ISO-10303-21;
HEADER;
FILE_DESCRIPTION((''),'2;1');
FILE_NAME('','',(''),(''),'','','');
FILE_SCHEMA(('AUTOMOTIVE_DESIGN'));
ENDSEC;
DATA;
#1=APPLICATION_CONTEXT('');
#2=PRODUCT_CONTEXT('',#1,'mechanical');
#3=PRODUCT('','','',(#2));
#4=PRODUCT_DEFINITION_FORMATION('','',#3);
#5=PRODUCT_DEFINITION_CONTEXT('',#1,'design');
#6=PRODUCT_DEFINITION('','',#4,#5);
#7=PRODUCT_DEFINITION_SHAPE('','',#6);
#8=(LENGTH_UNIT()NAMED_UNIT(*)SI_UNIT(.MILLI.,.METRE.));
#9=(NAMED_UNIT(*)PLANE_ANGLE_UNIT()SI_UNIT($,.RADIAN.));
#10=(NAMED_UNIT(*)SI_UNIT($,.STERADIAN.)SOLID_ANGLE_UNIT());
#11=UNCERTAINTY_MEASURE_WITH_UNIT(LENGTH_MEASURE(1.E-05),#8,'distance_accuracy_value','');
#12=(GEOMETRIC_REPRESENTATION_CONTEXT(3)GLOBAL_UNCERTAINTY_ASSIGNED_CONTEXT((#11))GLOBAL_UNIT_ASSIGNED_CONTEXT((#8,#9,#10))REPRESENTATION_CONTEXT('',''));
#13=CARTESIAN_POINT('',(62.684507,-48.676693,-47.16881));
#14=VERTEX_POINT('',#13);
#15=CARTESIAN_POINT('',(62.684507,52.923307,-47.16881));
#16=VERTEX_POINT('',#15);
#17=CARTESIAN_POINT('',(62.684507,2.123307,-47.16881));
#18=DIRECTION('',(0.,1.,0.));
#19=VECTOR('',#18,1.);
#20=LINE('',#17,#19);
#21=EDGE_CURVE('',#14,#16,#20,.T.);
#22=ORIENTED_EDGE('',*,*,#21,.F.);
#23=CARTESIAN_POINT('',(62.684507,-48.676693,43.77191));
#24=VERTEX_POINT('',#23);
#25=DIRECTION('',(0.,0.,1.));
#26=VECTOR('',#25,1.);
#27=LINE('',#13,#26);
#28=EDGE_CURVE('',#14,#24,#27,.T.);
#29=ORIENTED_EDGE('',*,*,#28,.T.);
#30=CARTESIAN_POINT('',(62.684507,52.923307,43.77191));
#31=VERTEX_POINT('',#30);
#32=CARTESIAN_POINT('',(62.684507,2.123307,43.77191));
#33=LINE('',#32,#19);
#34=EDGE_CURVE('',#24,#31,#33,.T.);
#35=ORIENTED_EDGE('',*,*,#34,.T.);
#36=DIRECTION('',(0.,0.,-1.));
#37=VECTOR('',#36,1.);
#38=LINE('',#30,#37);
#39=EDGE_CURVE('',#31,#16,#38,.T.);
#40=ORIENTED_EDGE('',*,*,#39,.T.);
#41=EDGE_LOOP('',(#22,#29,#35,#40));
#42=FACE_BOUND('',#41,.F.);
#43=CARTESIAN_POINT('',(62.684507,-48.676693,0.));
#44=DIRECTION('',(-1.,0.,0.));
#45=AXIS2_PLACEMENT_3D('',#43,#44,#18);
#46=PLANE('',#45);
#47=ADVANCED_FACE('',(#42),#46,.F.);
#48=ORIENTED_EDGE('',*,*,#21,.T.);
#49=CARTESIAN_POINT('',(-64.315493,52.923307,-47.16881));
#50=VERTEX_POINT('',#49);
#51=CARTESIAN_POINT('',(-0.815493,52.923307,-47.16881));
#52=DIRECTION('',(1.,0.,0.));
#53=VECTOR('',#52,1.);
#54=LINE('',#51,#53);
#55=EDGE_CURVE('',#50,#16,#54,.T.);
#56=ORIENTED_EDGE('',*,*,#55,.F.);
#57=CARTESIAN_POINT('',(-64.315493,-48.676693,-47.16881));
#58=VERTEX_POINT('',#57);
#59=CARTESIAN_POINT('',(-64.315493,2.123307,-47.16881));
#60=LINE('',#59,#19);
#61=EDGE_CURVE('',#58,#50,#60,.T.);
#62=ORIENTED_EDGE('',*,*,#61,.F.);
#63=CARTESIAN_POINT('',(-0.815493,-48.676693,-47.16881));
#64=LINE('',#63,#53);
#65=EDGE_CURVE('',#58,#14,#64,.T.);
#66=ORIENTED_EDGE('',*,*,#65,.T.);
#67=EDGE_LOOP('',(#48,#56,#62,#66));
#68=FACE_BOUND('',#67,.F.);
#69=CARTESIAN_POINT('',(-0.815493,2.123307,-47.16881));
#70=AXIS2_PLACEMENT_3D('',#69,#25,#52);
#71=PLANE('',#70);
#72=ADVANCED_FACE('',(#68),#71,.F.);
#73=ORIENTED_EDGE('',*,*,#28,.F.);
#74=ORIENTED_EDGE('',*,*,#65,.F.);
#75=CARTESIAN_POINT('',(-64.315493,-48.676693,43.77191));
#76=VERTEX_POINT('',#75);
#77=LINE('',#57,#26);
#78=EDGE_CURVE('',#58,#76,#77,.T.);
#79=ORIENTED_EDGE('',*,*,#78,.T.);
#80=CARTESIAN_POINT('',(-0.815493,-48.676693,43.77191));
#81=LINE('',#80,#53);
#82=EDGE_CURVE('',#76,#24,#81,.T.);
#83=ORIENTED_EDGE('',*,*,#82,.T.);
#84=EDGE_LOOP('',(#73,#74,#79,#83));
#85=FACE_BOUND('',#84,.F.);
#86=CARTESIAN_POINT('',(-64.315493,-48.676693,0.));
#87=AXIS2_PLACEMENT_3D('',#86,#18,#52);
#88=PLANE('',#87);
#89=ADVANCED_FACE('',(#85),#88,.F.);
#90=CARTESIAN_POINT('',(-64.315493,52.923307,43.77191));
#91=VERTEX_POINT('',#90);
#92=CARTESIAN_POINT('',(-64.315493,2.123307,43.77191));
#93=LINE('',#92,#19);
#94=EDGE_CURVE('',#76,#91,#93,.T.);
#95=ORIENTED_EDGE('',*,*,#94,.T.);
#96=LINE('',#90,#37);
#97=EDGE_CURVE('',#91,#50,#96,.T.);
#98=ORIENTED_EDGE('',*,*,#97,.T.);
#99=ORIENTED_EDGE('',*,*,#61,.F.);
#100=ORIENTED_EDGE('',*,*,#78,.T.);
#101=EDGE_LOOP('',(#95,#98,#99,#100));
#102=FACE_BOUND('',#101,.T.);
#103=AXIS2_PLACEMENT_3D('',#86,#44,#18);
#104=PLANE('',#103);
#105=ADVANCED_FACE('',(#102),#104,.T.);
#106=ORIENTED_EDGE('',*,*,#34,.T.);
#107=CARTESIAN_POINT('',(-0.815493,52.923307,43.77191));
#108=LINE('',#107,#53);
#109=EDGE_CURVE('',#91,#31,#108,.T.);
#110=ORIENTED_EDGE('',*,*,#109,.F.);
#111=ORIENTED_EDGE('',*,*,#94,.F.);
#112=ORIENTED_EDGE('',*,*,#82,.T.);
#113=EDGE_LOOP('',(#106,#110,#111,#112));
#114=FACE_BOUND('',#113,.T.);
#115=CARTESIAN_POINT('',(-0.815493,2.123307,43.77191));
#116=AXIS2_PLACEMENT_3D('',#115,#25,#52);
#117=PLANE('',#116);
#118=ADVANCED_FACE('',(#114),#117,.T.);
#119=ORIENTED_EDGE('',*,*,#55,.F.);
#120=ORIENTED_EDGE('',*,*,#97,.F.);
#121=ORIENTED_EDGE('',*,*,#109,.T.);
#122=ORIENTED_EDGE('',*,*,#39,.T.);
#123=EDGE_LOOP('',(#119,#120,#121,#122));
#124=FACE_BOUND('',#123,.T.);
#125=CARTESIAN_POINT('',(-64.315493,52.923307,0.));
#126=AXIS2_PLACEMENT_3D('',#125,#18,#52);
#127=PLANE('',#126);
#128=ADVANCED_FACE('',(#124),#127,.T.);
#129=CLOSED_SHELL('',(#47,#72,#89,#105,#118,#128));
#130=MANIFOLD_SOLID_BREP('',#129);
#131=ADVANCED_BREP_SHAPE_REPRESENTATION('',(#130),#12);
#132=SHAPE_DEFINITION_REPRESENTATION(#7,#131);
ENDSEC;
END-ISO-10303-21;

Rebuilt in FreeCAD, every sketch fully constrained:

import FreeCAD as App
import Part
import Sketcher
from FreeCAD import Vector
Q = App.Units.Quantity


def add_polygon(sketch, points):
    """Adds a closed chain of lines whose ends are joined by coincident constraints."""
    first, n = sketch.GeometryCount, len(points)
    for a, b in zip(points, points[1:] + points[:1]):
        sketch.addGeometry(Part.LineSegment(App.Vector(*a, 0), App.Vector(*b, 0)), False)
    for i in range(n):
        sketch.addConstraint(Sketcher.Constraint("Coincident", first + i, 2, first + (i + 1) % n, 1))

doc = App.newDocument("Part")
body = doc.addObject("PartDesign::Body", "Body")

# Sketch on XY plane
sketch1 = doc.addObject("Sketcher::SketchObject", "Sketch")
body.addObject(sketch1)
sketch1.AttachmentSupport = (doc.XY_Plane, [""])
sketch1.MapMode = "FlatFace"
add_polygon(sketch1, [(-64, 53), (-64, -49), (63, -49), (63, 53)])  # lines 0-3
sketch1.addConstraint([
    Sketcher.Constraint("Vertical", 0),
    Sketcher.Constraint("Horizontal", 1),
    Sketcher.Constraint("Vertical", 2),
    Sketcher.Constraint("Horizontal", 3),
    Sketcher.Constraint("DistanceX", 1, 1, 1, 2, Q("5 in")),
    Sketcher.Constraint("DistanceY", 0, 2, 0, 1, Q("4 in")),
    Sketcher.Constraint("DistanceX", 0, 2, -1, 1, Q("64.315493 mm")),
    Sketcher.Constraint("DistanceY", 0, 2, -1, 1, Q("48.676693 mm")),
])
pad1 = doc.addObject("PartDesign::Pad", "Pad")
body.addObject(pad1)
pad1.Profile = sketch1
pad1.Type = "TwoLengths"
pad1.Length = 47.16881
pad1.Length2 = 43.77191
pad1.Reversed = True

doc.recompute()
